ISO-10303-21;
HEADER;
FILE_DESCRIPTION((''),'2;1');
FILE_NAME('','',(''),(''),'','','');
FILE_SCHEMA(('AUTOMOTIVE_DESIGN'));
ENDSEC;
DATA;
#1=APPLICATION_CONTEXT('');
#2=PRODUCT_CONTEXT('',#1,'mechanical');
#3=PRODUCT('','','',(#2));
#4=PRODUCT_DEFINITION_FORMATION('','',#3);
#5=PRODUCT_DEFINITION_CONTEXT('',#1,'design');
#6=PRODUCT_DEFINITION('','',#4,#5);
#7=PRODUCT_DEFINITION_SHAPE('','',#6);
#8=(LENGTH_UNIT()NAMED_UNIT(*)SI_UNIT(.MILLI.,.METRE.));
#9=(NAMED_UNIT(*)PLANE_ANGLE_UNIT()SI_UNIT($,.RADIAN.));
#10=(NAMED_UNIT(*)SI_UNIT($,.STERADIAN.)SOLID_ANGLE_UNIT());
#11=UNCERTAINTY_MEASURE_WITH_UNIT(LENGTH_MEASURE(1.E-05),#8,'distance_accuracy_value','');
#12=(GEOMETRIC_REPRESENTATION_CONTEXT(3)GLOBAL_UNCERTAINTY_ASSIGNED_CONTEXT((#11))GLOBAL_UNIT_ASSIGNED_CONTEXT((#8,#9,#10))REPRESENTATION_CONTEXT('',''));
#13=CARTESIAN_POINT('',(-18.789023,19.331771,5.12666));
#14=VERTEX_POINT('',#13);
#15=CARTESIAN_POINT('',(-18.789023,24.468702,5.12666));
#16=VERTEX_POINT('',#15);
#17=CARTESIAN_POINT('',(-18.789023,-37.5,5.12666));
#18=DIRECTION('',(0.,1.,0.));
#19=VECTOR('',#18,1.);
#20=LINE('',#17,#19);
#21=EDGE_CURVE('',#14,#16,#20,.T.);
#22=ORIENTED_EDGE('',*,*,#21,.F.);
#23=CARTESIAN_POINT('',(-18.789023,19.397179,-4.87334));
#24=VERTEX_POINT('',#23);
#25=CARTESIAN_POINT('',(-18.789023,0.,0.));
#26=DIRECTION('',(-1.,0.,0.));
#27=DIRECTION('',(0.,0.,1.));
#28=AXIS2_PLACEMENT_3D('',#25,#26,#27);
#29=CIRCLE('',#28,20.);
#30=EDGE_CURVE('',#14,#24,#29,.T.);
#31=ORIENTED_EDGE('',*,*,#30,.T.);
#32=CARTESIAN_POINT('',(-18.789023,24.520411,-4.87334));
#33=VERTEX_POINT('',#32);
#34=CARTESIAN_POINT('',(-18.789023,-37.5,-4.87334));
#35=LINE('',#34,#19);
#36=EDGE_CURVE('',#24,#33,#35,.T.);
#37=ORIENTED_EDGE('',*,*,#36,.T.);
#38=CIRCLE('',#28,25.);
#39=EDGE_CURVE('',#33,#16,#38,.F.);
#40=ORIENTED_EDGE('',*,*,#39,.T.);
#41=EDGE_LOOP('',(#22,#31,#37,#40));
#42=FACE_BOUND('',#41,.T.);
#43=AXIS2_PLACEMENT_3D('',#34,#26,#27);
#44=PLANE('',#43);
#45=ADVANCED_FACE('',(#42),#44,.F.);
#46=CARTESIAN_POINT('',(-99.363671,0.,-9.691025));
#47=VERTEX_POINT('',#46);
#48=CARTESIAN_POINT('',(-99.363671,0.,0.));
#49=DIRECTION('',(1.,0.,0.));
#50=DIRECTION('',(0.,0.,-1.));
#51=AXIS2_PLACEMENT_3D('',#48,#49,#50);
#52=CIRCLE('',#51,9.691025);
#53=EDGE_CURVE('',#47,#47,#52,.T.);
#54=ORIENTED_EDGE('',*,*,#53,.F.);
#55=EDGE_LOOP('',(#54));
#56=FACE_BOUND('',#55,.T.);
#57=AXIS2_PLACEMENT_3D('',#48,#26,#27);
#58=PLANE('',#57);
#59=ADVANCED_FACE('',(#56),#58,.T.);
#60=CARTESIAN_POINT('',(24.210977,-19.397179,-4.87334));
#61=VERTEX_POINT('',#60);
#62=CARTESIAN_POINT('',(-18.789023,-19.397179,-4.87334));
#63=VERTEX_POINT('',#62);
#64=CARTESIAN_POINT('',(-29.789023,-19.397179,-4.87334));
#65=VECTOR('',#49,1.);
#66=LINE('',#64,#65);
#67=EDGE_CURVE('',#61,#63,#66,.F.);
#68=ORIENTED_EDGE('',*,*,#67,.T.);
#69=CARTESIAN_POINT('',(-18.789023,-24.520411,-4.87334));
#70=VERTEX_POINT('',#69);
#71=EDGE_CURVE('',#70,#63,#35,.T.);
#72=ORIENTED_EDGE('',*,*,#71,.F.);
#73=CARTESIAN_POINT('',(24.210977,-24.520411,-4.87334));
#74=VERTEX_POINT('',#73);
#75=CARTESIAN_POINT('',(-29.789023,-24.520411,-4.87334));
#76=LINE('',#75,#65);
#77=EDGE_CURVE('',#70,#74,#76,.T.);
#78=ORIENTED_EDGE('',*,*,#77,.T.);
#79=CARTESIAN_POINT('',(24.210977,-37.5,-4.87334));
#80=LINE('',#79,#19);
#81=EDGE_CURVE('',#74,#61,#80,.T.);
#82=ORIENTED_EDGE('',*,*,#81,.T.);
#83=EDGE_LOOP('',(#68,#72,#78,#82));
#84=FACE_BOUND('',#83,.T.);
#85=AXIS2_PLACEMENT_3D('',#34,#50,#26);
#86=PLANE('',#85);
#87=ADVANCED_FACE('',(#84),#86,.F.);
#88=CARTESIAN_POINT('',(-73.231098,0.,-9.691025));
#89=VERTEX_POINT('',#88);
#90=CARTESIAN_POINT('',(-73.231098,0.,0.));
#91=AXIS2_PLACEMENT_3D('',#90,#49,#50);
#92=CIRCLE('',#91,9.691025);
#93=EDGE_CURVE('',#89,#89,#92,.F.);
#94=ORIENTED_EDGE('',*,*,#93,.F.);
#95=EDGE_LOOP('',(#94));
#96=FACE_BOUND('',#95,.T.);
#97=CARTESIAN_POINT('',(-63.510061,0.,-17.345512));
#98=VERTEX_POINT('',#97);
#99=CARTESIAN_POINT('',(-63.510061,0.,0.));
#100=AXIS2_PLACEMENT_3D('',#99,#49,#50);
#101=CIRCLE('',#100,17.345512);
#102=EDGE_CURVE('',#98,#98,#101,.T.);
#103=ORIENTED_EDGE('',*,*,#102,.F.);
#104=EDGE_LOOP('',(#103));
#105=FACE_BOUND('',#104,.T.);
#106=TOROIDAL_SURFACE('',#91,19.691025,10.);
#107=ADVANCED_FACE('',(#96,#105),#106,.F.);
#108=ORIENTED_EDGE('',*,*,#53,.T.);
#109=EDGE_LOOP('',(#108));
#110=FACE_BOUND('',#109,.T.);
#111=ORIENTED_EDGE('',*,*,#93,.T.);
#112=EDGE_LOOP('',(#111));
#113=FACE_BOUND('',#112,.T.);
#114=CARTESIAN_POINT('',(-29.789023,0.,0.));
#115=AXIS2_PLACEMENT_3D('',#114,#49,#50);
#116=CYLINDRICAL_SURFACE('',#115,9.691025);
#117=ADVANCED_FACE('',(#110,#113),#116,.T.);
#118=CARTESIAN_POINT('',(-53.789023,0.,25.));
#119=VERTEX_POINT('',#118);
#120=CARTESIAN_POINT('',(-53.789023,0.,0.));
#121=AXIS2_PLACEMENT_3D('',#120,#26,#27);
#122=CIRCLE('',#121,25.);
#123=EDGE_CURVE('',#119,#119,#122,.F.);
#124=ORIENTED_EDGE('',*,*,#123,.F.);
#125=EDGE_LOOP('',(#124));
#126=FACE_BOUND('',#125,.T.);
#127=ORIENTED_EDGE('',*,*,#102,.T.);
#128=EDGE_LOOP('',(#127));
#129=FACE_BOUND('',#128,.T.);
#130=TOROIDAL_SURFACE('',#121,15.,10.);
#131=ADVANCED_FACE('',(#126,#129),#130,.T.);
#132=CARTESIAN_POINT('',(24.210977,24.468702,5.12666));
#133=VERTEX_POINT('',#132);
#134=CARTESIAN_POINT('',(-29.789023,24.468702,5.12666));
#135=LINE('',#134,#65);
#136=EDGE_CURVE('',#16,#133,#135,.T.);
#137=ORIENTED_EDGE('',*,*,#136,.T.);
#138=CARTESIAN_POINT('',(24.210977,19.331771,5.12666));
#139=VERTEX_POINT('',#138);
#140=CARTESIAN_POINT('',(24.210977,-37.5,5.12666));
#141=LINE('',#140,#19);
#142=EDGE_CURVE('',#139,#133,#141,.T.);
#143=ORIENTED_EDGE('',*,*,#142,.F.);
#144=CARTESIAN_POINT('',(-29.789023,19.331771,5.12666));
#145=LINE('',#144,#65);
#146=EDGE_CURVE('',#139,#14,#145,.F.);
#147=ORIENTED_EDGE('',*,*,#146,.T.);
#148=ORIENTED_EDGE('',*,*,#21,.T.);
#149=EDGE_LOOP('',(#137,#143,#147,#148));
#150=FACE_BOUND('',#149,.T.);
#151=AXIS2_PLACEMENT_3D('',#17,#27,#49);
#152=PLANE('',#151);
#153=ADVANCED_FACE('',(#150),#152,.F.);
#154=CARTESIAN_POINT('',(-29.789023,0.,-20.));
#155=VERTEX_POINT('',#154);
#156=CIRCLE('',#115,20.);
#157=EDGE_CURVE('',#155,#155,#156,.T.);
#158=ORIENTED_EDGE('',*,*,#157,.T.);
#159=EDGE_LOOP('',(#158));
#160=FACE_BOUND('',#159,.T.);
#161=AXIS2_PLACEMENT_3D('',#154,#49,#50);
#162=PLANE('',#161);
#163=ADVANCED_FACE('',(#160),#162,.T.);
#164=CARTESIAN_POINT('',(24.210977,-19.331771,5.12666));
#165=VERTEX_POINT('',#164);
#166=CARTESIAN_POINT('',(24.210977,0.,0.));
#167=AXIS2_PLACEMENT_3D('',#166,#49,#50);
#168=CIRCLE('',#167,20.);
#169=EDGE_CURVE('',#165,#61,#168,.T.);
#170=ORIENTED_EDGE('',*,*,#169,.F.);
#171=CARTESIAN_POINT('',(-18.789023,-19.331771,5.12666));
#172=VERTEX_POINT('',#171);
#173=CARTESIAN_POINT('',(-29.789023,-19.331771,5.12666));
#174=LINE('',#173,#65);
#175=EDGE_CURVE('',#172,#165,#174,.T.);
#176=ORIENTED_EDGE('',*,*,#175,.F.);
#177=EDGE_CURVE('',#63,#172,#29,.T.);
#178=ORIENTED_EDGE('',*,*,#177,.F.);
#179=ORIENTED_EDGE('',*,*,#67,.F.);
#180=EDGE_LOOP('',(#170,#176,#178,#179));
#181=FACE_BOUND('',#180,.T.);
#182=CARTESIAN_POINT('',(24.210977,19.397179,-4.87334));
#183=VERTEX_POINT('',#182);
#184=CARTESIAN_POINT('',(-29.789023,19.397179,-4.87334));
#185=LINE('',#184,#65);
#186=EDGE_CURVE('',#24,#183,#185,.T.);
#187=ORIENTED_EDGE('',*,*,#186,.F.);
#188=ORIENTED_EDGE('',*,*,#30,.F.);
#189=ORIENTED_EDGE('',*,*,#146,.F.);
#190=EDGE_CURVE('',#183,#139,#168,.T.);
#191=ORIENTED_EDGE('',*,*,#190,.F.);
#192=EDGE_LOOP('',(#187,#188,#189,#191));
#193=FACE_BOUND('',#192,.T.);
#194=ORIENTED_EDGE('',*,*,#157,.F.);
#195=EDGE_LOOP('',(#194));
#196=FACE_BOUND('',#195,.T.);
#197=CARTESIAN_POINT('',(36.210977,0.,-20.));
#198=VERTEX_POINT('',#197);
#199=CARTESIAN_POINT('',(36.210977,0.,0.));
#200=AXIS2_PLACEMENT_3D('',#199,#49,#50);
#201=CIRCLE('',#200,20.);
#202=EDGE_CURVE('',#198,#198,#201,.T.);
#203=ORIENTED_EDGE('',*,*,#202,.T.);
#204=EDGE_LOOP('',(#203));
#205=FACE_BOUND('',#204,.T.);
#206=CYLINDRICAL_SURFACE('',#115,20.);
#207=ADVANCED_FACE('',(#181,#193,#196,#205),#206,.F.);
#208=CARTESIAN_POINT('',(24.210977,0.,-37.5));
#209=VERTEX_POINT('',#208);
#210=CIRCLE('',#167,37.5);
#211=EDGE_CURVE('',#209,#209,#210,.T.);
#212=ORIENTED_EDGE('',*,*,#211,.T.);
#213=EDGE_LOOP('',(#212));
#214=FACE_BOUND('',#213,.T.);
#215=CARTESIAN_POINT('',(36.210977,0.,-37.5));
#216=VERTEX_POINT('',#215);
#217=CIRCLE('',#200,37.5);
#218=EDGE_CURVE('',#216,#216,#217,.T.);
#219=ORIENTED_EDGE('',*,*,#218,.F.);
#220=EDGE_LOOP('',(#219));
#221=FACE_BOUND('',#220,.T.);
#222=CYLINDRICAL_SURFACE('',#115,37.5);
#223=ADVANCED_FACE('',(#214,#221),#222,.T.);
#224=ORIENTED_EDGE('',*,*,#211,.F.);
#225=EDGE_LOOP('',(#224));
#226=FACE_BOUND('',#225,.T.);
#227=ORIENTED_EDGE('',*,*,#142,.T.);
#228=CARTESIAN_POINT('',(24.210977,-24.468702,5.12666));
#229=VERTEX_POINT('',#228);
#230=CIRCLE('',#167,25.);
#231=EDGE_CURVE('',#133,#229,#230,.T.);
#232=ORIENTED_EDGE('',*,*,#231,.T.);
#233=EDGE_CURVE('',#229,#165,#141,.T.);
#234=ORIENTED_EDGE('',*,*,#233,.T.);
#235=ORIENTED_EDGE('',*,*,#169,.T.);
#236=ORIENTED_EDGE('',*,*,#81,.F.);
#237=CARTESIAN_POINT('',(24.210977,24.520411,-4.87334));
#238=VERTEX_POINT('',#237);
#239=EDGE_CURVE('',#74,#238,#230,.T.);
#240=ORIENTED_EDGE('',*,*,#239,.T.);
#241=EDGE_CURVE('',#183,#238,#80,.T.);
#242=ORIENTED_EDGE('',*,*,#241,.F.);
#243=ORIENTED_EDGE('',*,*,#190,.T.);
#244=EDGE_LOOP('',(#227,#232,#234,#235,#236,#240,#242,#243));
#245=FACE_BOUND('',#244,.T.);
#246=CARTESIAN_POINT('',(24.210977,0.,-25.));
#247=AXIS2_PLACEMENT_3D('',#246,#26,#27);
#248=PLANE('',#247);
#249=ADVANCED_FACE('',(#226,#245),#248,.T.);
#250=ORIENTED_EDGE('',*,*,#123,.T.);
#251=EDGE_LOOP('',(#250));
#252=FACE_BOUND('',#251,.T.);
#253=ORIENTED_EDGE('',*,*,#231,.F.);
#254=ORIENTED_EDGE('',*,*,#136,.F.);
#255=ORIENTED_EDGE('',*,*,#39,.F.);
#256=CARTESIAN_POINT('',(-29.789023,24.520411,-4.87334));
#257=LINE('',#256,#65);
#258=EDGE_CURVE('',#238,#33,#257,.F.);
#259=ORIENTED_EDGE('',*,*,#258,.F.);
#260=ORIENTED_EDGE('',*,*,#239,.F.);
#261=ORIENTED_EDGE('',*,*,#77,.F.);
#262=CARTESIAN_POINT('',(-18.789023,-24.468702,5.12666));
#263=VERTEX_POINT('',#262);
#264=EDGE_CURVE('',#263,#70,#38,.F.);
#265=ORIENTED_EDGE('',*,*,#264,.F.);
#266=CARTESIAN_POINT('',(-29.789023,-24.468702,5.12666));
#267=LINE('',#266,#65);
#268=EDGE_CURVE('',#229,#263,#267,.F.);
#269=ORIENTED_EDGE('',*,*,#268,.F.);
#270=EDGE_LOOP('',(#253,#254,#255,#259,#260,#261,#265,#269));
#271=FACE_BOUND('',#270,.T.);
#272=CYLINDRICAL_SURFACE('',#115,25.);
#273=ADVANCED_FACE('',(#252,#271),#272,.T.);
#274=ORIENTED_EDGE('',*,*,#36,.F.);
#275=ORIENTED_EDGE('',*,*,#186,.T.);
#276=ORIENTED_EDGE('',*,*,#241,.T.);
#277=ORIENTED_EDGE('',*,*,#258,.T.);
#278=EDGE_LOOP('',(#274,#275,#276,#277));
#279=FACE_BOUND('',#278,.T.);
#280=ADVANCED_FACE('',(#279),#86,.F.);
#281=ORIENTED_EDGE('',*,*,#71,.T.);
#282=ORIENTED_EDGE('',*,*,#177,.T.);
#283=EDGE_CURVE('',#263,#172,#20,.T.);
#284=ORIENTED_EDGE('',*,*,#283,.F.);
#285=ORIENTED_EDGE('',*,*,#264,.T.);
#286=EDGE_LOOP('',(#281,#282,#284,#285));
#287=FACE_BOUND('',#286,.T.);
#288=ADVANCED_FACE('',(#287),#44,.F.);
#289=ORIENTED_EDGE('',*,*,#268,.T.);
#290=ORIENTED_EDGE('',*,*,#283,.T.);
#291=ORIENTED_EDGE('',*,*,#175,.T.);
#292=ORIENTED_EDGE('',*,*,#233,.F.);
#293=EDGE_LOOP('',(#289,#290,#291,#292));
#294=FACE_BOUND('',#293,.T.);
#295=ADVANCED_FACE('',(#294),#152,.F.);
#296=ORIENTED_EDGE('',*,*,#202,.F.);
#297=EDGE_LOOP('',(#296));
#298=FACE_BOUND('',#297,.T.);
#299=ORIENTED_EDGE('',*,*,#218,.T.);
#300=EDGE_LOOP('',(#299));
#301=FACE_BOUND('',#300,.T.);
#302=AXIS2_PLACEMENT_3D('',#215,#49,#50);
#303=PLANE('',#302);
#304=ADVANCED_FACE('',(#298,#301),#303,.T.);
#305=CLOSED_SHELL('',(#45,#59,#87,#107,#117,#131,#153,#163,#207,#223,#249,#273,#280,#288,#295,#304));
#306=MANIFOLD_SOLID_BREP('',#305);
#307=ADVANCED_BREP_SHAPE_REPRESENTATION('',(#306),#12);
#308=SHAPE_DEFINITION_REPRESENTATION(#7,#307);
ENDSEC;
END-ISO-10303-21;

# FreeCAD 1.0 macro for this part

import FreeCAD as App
import Part
import Sketcher


def edges_at(feature, points):
    """Names of the edges that pass closest to the given points."""
    edges = feature.Shape.Edges
    near = lambda p: min(range(len(edges)), key=lambda i: edges[i].distToShape(Part.Vertex(*p))[0])
    return sorted({f"Edge{near(p) + 1}" for p in points})

doc = App.newDocument("Part")
body = doc.addObject("PartDesign::Body", "Body")

# Sketch on XZ plane
sketch1 = body.newObject("Sketcher::SketchObject", "Sketch")
sketch1.AttachmentSupport = (doc.getObject("XZ_Plane"), [""])
sketch1.MapMode = "FlatFace"
sketch1.addGeometry([
    Part.LineSegment(App.Vector(-64, -10, 0), App.Vector(-99, -10, 0)),  # 0
    Part.LineSegment(App.Vector(-99, -10, 0), App.Vector(-99, 0, 0)),  # 1
    Part.LineSegment(App.Vector(-99, 0, 0), App.Vector(-30, 0, 0)),  # 2
    Part.LineSegment(App.Vector(-30, 0, 0), App.Vector(-30, -20, 0)),  # 3
    Part.LineSegment(App.Vector(-30, -20, 0), App.Vector(36, -20, 0)),  # 4
    Part.LineSegment(App.Vector(36, -20, 0), App.Vector(36, -38, 0)),  # 5
    Part.LineSegment(App.Vector(36, -38, 0), App.Vector(24, -38, 0)),  # 6
    Part.LineSegment(App.Vector(24, -38, 0), App.Vector(24, -25, 0)),  # 7
    Part.LineSegment(App.Vector(24, -25, 0), App.Vector(-64, -25, 0)),  # 8
    Part.LineSegment(App.Vector(-64, -25, 0), App.Vector(-64, -10, 0)),  # 9
], False)
sketch1.addConstraint([
    Sketcher.Constraint("Coincident", 0, 2, 1, 1),
    Sketcher.Constraint("Coincident", 1, 2, 2, 1),
    Sketcher.Constraint("Coincident", 2, 2, 3, 1),
    Sketcher.Constraint("Coincident", 3, 2, 4, 1),
    Sketcher.Constraint("Coincident", 4, 2, 5, 1),
    Sketcher.Constraint("Coincident", 5, 2, 6, 1),
    Sketcher.Constraint("Coincident", 6, 2, 7, 1),
    Sketcher.Constraint("Coincident", 7, 2, 8, 1),
    Sketcher.Constraint("Coincident", 8, 2, 9, 1),
    Sketcher.Constraint("Coincident", 9, 2, 0, 1),
    Sketcher.Constraint("Horizontal", 0),
    Sketcher.Constraint("Vertical", 1),
    Sketcher.Constraint("Horizontal", 2),
    Sketcher.Constraint("Vertical", 3),
    Sketcher.Constraint("Horizontal", 4),
    Sketcher.Constraint("Vertical", 5),
    Sketcher.Constraint("Horizontal", 6),
    Sketcher.Constraint("Vertical", 7),
    Sketcher.Constraint("Horizontal", 8),
    Sketcher.Constraint("Vertical", 9),
    Sketcher.Constraint("PointOnObject", 1, 2, -1),
    Sketcher.Constraint("DistanceX", 4, 1, 4, 2, 66.0),
    Sketcher.Constraint("DistanceX", 6, 2, 6, 1, 12.0),
    Sketcher.Constraint("DistanceX", 8, 2, 8, 1, 88.0),
    Sketcher.Constraint("DistanceY", 3, 2, 3, 1, 20.0),
    Sketcher.Constraint("DistanceY", 5, 2, 5, 1, 17.5),
    Sketcher.Constraint("DistanceY", 7, 1, 7, 2, 12.5),
    Sketcher.Constraint("DistanceX", 0, 2, 0, 1, 35.574648),
    Sketcher.Constraint("DistanceY", 1, 1, 1, 2, 9.691025),
    Sketcher.Constraint("DistanceX", 0, 2, -1, 1, 99.363671),
])
revolution = body.newObject("PartDesign::Revolution", "Revolution")
revolution.Profile = sketch1
revolution.ReferenceAxis = (sketch1, ["H_Axis"])
revolution.Angle = 360
doc.recompute()

fillet = body.newObject("PartDesign::Fillet", "Fillet")
fillet.Base = (revolution, edges_at(revolution, [(-63.789, 0, 25)]))
fillet.Radius = 10
doc.recompute()

fillet2 = body.newObject("PartDesign::Fillet", "Fillet001")
fillet2.Base = (fillet, edges_at(fillet, [(-63.789, 0, 9.691)]))
fillet2.Radius = 10

# Sketch on XZ plane
sketch2 = body.newObject("Sketcher::SketchObject", "Sketch001")
sketch2.AttachmentSupport = (doc.getObject("XZ_Plane"), [""])
sketch2.MapMode = "FlatFace"
sketch2.addGeometry([
    Part.LineSegment(App.Vector(-19, -5, 0), App.Vector(-19, 5, 0)),
    Part.LineSegment(App.Vector(-19, 5, 0), App.Vector(24, 5, 0)),
    Part.LineSegment(App.Vector(24, 5, 0), App.Vector(24, -5, 0)),
    Part.LineSegment(App.Vector(24, -5, 0), App.Vector(-19, -5, 0)),
], False)
sketch2.addConstraint([
    Sketcher.Constraint("Coincident", 0, 2, 1, 1),
    Sketcher.Constraint("Coincident", 1, 2, 2, 1),
    Sketcher.Constraint("Coincident", 2, 2, 3, 1),
    Sketcher.Constraint("Coincident", 3, 2, 0, 1),
    Sketcher.Constraint("Vertical", 0),
    Sketcher.Constraint("Horizontal", 1),
    Sketcher.Constraint("Vertical", 2),
    Sketcher.Constraint("Horizontal", 3),
    Sketcher.Constraint("DistanceX", 1, 1, 1, 2, 43.0),
    Sketcher.Constraint("DistanceY", 0, 1, 0, 2, 10.0),
    Sketcher.Constraint("DistanceY", -1, 1, 0, 2, 5.12666),
    Sketcher.Constraint("DistanceX", 0, 2, -1, 1, 18.789023),
])
pocket1 = body.newObject("PartDesign::Pocket", "Pocket")
pocket1.Profile = sketch2
pocket1.Type = "ThroughAll"
pocket1.Midplane = True

doc.recompute()
